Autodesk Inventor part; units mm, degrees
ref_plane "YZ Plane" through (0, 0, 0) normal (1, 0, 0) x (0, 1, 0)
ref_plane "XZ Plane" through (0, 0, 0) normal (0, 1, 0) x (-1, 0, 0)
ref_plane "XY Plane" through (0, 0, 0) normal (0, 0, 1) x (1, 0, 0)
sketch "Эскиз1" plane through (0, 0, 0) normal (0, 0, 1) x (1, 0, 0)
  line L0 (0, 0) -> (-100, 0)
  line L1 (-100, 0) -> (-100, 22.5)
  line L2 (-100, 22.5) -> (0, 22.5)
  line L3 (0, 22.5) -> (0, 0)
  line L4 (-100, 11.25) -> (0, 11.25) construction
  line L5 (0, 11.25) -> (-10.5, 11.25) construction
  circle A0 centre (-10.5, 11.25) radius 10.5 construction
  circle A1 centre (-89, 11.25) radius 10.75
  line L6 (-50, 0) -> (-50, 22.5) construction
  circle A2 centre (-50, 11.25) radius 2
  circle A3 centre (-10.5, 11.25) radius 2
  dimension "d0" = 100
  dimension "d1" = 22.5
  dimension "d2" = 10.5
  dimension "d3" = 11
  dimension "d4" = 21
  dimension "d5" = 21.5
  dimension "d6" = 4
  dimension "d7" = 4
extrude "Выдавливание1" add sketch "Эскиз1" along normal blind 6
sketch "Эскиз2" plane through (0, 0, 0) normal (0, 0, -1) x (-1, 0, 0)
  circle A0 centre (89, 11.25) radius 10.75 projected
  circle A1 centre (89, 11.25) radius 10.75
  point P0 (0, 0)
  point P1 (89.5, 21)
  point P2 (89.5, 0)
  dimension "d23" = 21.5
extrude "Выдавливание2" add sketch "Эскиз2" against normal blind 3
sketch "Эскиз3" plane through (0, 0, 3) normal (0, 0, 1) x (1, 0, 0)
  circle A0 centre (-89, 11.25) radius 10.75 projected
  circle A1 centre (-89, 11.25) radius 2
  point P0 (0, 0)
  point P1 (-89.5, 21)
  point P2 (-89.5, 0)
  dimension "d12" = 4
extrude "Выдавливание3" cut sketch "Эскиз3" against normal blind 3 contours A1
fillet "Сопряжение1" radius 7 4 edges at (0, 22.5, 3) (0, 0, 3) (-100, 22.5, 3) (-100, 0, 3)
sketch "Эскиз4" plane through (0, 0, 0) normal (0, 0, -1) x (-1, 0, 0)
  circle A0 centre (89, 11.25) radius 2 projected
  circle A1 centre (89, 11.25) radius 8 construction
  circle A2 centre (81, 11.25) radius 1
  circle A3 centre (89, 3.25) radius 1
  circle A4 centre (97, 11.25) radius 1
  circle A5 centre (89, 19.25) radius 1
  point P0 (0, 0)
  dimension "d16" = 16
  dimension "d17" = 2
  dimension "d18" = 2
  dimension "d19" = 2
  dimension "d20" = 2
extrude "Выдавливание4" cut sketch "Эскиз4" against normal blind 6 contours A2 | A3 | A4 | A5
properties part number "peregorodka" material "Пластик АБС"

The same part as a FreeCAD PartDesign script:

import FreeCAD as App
import Part
import Sketcher
Q = App.Units.Quantity


def edges_at(feature, points):
    """Names of the edges that pass closest to the given points."""
    edges = feature.Shape.Edges
    near = lambda p: min(range(len(edges)), key=lambda i: edges[i].distToShape(Part.Vertex(*p))[0])
    return sorted({f"Edge{near(p) + 1}" for p in points})

doc = App.newDocument("Part")
body = doc.addObject("PartDesign::Body", "Body")

sketch1 = body.newObject("Sketcher::SketchObject", "Sketch")
sketch1.AttachmentSupport = (doc.getObject("XY_Plane"), [""])
sketch1.MapMode = "FlatFace"
sketch1.addGeometry([
    Part.LineSegment(App.Vector(-100, 0, 0), App.Vector(0, 0, 0)),
    Part.LineSegment(App.Vector(0, 0, 0), App.Vector(0, 22.5, 0)),
    Part.LineSegment(App.Vector(0, 22.5, 0), App.Vector(-100, 22.5, 0)),
    Part.LineSegment(App.Vector(-100, 22.5, 0), App.Vector(-100, 0, 0)),
    Part.Circle(App.Vector(-89, 11.2, 0), App.Vector(0, 0, 1), 10.8),
    Part.Circle(App.Vector(-50, 11.2, 0), App.Vector(0, 0, 1), 2),
    Part.Circle(App.Vector(-10.5, 11.2, 0), App.Vector(0, 0, 1), 2),
], False)
sketch1.addConstraint([
    Sketcher.Constraint("Coincident", 0, 2, 1, 1),
    Sketcher.Constraint("Coincident", 1, 2, 2, 1),
    Sketcher.Constraint("Coincident", 2, 2, 3, 1),
    Sketcher.Constraint("Coincident", 3, 2, 0, 1),
    Sketcher.Constraint("Horizontal", 0),
    Sketcher.Constraint("Vertical", 1),
    Sketcher.Constraint("Horizontal", 2),
    Sketcher.Constraint("Vertical", 3),
    Sketcher.Constraint("Coincident", 0, 2, -1, 1),
    Sketcher.Constraint("Equal", 5, 6),
    Sketcher.Constraint("Horizontal", 4, 3, 5, 3),
    Sketcher.Constraint("Horizontal", 5, 3, 6, 3),
    Sketcher.Constraint("Diameter", 5, Q("4 mm")),
    Sketcher.Constraint("Diameter", 4, Q("21.5 mm")),
    Sketcher.Constraint("DistanceX", 0, 1, 0, 2, Q("100 mm")),
    Sketcher.Constraint("DistanceY", 1, 1, 1, 2, Q("22.5 mm")),
    Sketcher.Constraint("DistanceX", 2, 2, 4, 3, Q("11 mm")),
    Sketcher.Constraint("DistanceX", 6, 3, -1, 1, Q("10.5 mm")),
    Sketcher.Constraint("DistanceX", 5, 3, -1, 1, Q("50 mm")),
    Sketcher.Constraint("DistanceY", -1, 1, 4, 3, Q("11.25 mm")),
])
pad1 = body.newObject("PartDesign::Pad", "Pad")
pad1.Profile = sketch1
pad1.Length = 6

sketch2 = body.newObject("Sketcher::SketchObject", "Sketch001")
sketch2.AttachmentSupport = (doc.getObject("XY_Plane"), [""])
sketch2.MapMode = "FlatFace"
sketch2.addGeometry(Part.Circle(App.Vector(-89, 11, 0), App.Vector(0, 0, 1), 11), False)
sketch2.addConstraint([
    Sketcher.Constraint("Diameter", 0, Q("21.5 mm")),
    Sketcher.Constraint("DistanceX", 0, 3, -1, 1, Q("89 mm")),
    Sketcher.Constraint("DistanceY", -1, 1, 0, 3, Q("11.25 mm")),
])
pad2 = body.newObject("PartDesign::Pad", "Pad001")
pad2.Profile = sketch2
pad2.Length = 3

sketch3 = body.newObject("Sketcher::SketchObject", "Sketch002")
sketch3.AttachmentSupport = (doc.getObject("XY_Plane"), [""])
sketch3.MapMode = "FlatFace"
sketch3.AttachmentOffset = App.Placement(App.Vector(0, 0, 3), App.Rotation())
sketch3.addGeometry(Part.Circle(App.Vector(-89, 11.2, 0), App.Vector(0, 0, 1), 2), False)
sketch3.addConstraint([
    Sketcher.Constraint("Diameter", 0, Q("4 mm")),
    Sketcher.Constraint("DistanceX", 0, 3, -1, 1, Q("89 mm")),
    Sketcher.Constraint("DistanceY", -1, 1, 0, 3, Q("11.25 mm")),
])
pocket1 = body.newObject("PartDesign::Pocket", "Pocket")
pocket1.Profile = sketch3
pocket1.Length = 3
doc.recompute()

fillet = body.newObject("PartDesign::Fillet", "Fillet")
fillet.Base = (pocket1, edges_at(pocket1, [
    (0, 22.5, 3),
    (0, 0, 3),
    (-100, 22.5, 3),
    (-100, 0, 3),
]))
fillet.Radius = 7

sketch4 = body.newObject("Sketcher::SketchObject", "Sketch003")
sketch4.AttachmentSupport = (doc.getObject("XY_Plane"), [""])
sketch4.MapMode = "FlatFace"
sketch4.addGeometry([
    Part.Circle(App.Vector(-81, 11.2, 0), App.Vector(0, 0, 1), 1),
    Part.Circle(App.Vector(-89, 3.2, 0), App.Vector(0, 0, 1), 1),
    Part.Circle(App.Vector(-97, 11.2, 0), App.Vector(0, 0, 1), 1),
    Part.Circle(App.Vector(-89, 19.2, 0), App.Vector(0, 0, 1), 1),
], False)
sketch4.addConstraint([
    Sketcher.Constraint("Equal", 0, 1),
    Sketcher.Constraint("Equal", 1, 2),
    Sketcher.Constraint("Equal", 2, 3),
    Sketcher.Constraint("Horizontal", 0, 3, 2, 3),
    Sketcher.Constraint("Vertical", 1, 3, 3, 3),
    Sketcher.Constraint("Diameter", 0, Q("2 mm")),
    Sketcher.Constraint("DistanceX", 2, 3, 0, 3, Q("16 mm")),
    Sketcher.Constraint("DistanceY", 1, 3, 3, 3, Q("16 mm")),
    Sketcher.Constraint("DistanceX", 0, 3, -1, 1, Q("81 mm")),
    Sketcher.Constraint("DistanceX", 1, 3, -1, 1, Q("89 mm")),
    Sketcher.Constraint("DistanceY", 1, 3, 0, 3, Q("8 mm")),
    Sketcher.Constraint("DistanceY", -1, 1, 0, 3, Q("11.25 mm")),
])
pocket2 = body.newObject("PartDesign::Pocket", "Pocket001")
pocket2.Profile = sketch4
pocket2.Length = 6
pocket2.Reversed = True

doc.recompute()
